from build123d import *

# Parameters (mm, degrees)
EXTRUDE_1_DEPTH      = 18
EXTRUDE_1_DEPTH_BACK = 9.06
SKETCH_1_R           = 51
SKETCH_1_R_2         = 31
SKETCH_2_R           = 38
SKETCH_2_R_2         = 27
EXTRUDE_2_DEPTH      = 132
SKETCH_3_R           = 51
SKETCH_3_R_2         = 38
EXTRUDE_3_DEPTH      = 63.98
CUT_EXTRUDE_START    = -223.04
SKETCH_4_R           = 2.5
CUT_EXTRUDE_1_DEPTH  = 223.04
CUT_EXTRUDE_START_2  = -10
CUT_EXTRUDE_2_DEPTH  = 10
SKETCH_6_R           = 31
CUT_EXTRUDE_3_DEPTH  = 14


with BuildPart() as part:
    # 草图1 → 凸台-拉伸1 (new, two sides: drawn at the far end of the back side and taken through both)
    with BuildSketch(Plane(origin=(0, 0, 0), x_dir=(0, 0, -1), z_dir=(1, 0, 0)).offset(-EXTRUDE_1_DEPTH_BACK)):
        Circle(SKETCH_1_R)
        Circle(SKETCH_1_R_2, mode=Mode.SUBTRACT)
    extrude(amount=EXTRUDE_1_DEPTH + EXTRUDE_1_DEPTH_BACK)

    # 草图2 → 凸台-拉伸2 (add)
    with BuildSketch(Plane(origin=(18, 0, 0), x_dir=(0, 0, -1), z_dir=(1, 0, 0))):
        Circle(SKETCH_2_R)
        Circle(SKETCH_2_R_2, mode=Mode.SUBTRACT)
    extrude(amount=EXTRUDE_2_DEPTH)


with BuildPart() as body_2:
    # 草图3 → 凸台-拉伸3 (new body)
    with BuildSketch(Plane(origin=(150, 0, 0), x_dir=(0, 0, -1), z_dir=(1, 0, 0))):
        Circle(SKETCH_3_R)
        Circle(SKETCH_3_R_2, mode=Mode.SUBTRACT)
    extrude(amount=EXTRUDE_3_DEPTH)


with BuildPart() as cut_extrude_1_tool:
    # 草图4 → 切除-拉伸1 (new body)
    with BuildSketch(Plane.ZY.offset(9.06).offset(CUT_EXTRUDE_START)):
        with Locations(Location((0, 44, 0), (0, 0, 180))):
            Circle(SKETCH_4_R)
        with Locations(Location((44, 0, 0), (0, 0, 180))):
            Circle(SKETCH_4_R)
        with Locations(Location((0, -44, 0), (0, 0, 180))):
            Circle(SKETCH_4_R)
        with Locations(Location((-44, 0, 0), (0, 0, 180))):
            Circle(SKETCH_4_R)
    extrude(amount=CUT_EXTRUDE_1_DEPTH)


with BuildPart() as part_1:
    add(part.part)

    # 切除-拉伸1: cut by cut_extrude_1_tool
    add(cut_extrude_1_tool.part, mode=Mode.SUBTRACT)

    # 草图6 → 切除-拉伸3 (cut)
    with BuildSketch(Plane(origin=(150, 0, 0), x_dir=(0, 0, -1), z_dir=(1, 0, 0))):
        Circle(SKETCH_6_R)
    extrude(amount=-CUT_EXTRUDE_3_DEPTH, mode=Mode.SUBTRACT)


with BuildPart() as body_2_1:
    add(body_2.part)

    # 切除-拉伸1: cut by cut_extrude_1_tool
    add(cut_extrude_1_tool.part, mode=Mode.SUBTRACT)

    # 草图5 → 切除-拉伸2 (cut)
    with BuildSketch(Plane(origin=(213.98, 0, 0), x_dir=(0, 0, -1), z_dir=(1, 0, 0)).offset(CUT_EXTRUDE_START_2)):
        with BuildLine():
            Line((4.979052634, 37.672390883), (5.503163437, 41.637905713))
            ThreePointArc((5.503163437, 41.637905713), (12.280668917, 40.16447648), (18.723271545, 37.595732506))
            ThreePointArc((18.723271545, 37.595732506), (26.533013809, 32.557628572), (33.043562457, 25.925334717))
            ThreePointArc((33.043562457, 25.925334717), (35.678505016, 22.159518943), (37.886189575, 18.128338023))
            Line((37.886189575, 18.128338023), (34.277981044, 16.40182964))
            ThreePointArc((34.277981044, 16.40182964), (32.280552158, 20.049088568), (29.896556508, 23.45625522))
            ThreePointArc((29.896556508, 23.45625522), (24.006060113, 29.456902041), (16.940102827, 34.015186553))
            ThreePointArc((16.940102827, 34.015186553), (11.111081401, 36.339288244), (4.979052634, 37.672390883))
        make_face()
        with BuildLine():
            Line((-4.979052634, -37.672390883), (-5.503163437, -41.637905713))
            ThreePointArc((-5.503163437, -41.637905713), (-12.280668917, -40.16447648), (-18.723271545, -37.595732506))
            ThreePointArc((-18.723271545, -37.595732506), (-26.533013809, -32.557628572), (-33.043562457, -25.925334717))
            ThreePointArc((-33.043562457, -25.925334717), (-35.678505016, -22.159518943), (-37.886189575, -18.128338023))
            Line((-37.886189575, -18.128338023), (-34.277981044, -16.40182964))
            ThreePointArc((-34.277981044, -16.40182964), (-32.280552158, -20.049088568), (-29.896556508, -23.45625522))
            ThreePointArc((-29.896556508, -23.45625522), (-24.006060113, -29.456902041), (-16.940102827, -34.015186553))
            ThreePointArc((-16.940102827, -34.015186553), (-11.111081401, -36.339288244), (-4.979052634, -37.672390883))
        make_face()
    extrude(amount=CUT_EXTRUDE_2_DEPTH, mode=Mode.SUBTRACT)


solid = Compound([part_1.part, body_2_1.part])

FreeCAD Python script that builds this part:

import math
import FreeCAD as App
import Part
import Sketcher

V = App.Vector

doc = App.newDocument("Part")
body = doc.addObject("PartDesign::Body", "Body")

# Sketch on YZ plane
sketch1 = body.newObject("Sketcher::SketchObject", "Sketch")
sketch1.AttachmentSupport = (doc.getObject("YZ_Plane"), [""])
sketch1.MapMode = "FlatFace"
sketch1.addGeometry([
    Part.Circle(V(0, 0, 0), V(0, 0, 1), 51),
    Part.Circle(V(0, 0, 0), V(0, 0, 1), 31),
], False)
sketch1.addConstraint([
    Sketcher.Constraint("Coincident", 0, 3, -1, 1),
    Sketcher.Constraint("Coincident", 1, 3, -1, 1),
    Sketcher.Constraint("Diameter", 0, 102.0),
    Sketcher.Constraint("Diameter", 1, 62.0),
])
pad1 = body.newObject("PartDesign::Pad", "Pad")
pad1.Profile = sketch1
pad1.Type = "TwoLengths"
pad1.Length = 18
pad1.Length2 = 9.06

# Sketch on YZ plane
sketch2 = body.newObject("Sketcher::SketchObject", "Sketch001")
sketch2.AttachmentSupport = (doc.getObject("YZ_Plane"), [""])
sketch2.MapMode = "FlatFace"
sketch2.AttachmentOffset = App.Placement(V(0, 0, 18), App.Rotation())
sketch2.addGeometry([
    Part.Circle(V(0, 0, 0), V(0, 0, 1), 38),
    Part.Circle(V(0, 0, 0), V(0, 0, 1), 27),
], False)
sketch2.addConstraint([
    Sketcher.Constraint("Coincident", 0, 3, -1, 1),
    Sketcher.Constraint("Coincident", 1, 3, -1, 1),
    Sketcher.Constraint("Diameter", 0, 76.0),
    Sketcher.Constraint("Diameter", 1, 54.0),
])
pad2 = body.newObject("PartDesign::Pad", "Pad001")
pad2.Profile = sketch2
pad2.Length = 132
body2 = doc.addObject("PartDesign::Body", "Body001")

# Sketch on YZ plane
sketch3 = body2.newObject("Sketcher::SketchObject", "Sketch002")
sketch3.AttachmentSupport = (doc.getObject("YZ_Plane001"), [""])
sketch3.MapMode = "FlatFace"
sketch3.AttachmentOffset = App.Placement(V(0, 0, 150), App.Rotation())
sketch3.addGeometry([
    Part.Circle(V(0, 0, 0), V(0, 0, 1), 51),
    Part.Circle(V(0, 0, 0), V(0, 0, 1), 38),
], False)
sketch3.addConstraint([
    Sketcher.Constraint("Coincident", 0, 3, -1, 1),
    Sketcher.Constraint("Coincident", 1, 3, -1, 1),
    Sketcher.Constraint("Diameter", 0, 102.0),
    Sketcher.Constraint("Diameter", 1, 76.0),
])
pad3 = body2.newObject("PartDesign::Pad", "Pad002")
pad3.Profile = sketch3
pad3.Length = 63.98
body3 = doc.addObject("PartDesign::Body", "Body002")
body3.AllowCompound = True

# Sketch on YZ plane
sketch4 = body3.newObject("Sketcher::SketchObject", "Sketch003")
sketch4.AttachmentSupport = (doc.getObject("YZ_Plane002"), [""])
sketch4.MapMode = "FlatFace"
sketch4.AttachmentOffset = App.Placement(V(0, 0, 213.98), App.Rotation())
sketch4.addGeometry([
    Part.Circle(V(44, 0, 0), V(0, 0, 1), 2.5),
    Part.Circle(V(0, 44, 0), V(0, 0, 1), 2.5),
    Part.Circle(V(-44, 0, 0), V(0, 0, 1), 2.5),
    Part.Circle(V(0, -44, 0), V(0, 0, 1), 2.5),
], False)
sketch4.addConstraint([
    Sketcher.Constraint("Equal", 0, 1),
    Sketcher.Constraint("Equal", 1, 2),
    Sketcher.Constraint("Equal", 2, 3),
    Sketcher.Constraint("Symmetric", 0, 3, 2, 3, -1, 1),
    Sketcher.Constraint("Symmetric", 1, 3, 3, 3, -1, 1),
    Sketcher.Constraint("PointOnObject", 0, 3, -1),
    Sketcher.Constraint("PointOnObject", 1, 3, -2),
    Sketcher.Constraint("Diameter", 0, 5.0),
    Sketcher.Constraint("DistanceX", -1, 1, 0, 3, 44.0),
    Sketcher.Constraint("DistanceY", -1, 1, 1, 3, 44.0),
])
pad4 = body3.newObject("PartDesign::Pad", "Pad003")
pad4.Profile = sketch4
pad4.Length = 223.04
pad4.Reversed = True
doc.recompute()

body4 = doc.addObject("PartDesign::Body", "Body003")
body4.BaseFeature = body3
boolean = body.newObject("PartDesign::Boolean", "Boolean")
boolean.Type = "Cut"
boolean.addObjects([body4])
doc.recompute()

# Sketch on YZ plane
sketch5 = body.newObject("Sketcher::SketchObject", "Sketch004")
sketch5.AttachmentSupport = (doc.getObject("YZ_Plane"), [""])
sketch5.MapMode = "FlatFace"
sketch5.AttachmentOffset = App.Placement(V(0, 0, 150), App.Rotation())
sketch5.addGeometry(Part.Circle(V(0, 0, 0), V(0, 0, 1), 31), False)
sketch5.addConstraint([
    Sketcher.Constraint("Coincident", 0, 3, -1, 1),
    Sketcher.Constraint("Diameter", 0, 62.0),
])
pocket1 = body.newObject("PartDesign::Pocket", "Pocket")
pocket1.Profile = sketch5
pocket1.Length = 14
doc.recompute()

boolean2 = body2.newObject("PartDesign::Boolean", "Boolean001")
boolean2.Type = "Cut"
boolean2.addObjects([body3])

# Sketch on YZ plane
sketch6 = body2.newObject("Sketcher::SketchObject", "Sketch005")
sketch6.AttachmentSupport = (doc.getObject("YZ_Plane001"), [""])
sketch6.MapMode = "FlatFace"
sketch6.AttachmentOffset = App.Placement(V(0, 0, 203.98), App.Rotation())
sketch6.addGeometry([
    Part.LineSegment(V(41.6, -5.5, 0), V(37.7, -5, 0)),  # 0
    Part.ArcOfCircle(Part.Circle(V(0, 0, 0), V(0, 0, 1), 38), math.radians(-26.47), math.radians(-7.53)),  # 1
    Part.ArcOfCircle(Part.Circle(V(0, 0, 0), V(0, 0, 1), 38), math.radians(-52), math.radians(-26)),  # 2
    Part.ArcOfCircle(Part.Circle(V(0, 0, 0), V(0, 0, 1), 38), math.radians(-64.43), math.radians(-51.88)),  # 3
    Part.LineSegment(V(16.4, -34.3, 0), V(18.1, -37.9, 0)),  # 4
    Part.ArcOfCircle(Part.Circle(V(0, 0, 0), V(0, 0, 1), 42), math.radians(-64.43), math.radians(-51.88)),  # 5
    Part.ArcOfCircle(Part.Circle(V(0, 0, 0), V(0, 0, 1), 42), math.radians(-52), math.radians(-26)),  # 6
    Part.ArcOfCircle(Part.Circle(V(0, 0, 0), V(0, 0, 1), 42), math.radians(-26.47), math.radians(-7.53)),  # 7
    Part.LineSegment(V(-41.6, 5.5, 0), V(-37.7, 5, 0)),  # 8
    Part.ArcOfCircle(Part.Circle(V(0, 0, 0), V(0, 0, 1), 38), math.radians(153.53), math.radians(172.47)),  # 9
    Part.ArcOfCircle(Part.Circle(V(0, 0, 0), V(0, 0, 1), 38), math.radians(128), math.radians(154)),  # 10
    Part.ArcOfCircle(Part.Circle(V(0, 0, 0), V(0, 0, 1), 38), math.radians(115.57), math.radians(128.12)),  # 11
    Part.LineSegment(V(-16.4, 34.3, 0), V(-18.1, 37.9, 0)),  # 12
    Part.ArcOfCircle(Part.Circle(V(0, 0, 0), V(0, 0, 1), 42), math.radians(115.57), math.radians(128.12)),  # 13
    Part.ArcOfCircle(Part.Circle(V(0, 0, 0), V(0, 0, 1), 42), math.radians(128), math.radians(154)),  # 14
    Part.ArcOfCircle(Part.Circle(V(0, 0, 0), V(0, 0, 1), 42), math.radians(153.53), math.radians(172.47)),  # 15
], False)
sketch6.addConstraint([
    Sketcher.Constraint("Coincident", 0, 2, 1, 2),
    Sketcher.Constraint("Tangent", 1, 1, 2, 2),
    Sketcher.Constraint("Tangent", 2, 1, 3, 2),
    Sketcher.Constraint("Coincident", 3, 1, 4, 1),
    Sketcher.Constraint("Coincident", 4, 2, 5, 1),
    Sketcher.Constraint("Tangent", 5, 2, 6, 1),
    Sketcher.Constraint("Tangent", 6, 2, 7, 1),
    Sketcher.Constraint("Coincident", 7, 2, 0, 1),
    Sketcher.Constraint("Coincident", 8, 2, 9, 2),
    Sketcher.Constraint("Tangent", 9, 1, 10, 2),
    Sketcher.Constraint("Tangent", 10, 1, 11, 2),
    Sketcher.Constraint("Coincident", 11, 1, 12, 1),
    Sketcher.Constraint("Coincident", 12, 2, 13, 1),
    Sketcher.Constraint("Tangent", 13, 2, 14, 1),
    Sketcher.Constraint("Tangent", 14, 2, 15, 1),
    Sketcher.Constraint("Coincident", 15, 2, 8, 1),
    Sketcher.Constraint("Coincident", 1, 3, -1, 1),
    Sketcher.Constraint("Coincident", 3, 3, -1, 1),
    Sketcher.Constraint("Coincident", 5, 3, -1, 1),
    Sketcher.Constraint("Coincident", 7, 3, -1, 1),
    Sketcher.Constraint("Coincident", 9, 3, -1, 1),
    Sketcher.Constraint("Coincident", 11, 3, -1, 1),
    Sketcher.Constraint("Coincident", 13, 3, -1, 1),
    Sketcher.Constraint("Coincident", 15, 3, -1, 1),
    Sketcher.Constraint("Equal", 3, 9),
    Sketcher.Constraint("Equal", 7, 13),
    Sketcher.Constraint("Parallel", 0, 8),
    Sketcher.Constraint("Parallel", 4, 12),
    Sketcher.Constraint("Radius", 1, 38.0),
    Sketcher.Constraint("Radius", 5, 42.0),
    Sketcher.Constraint("DistanceY", 5, 2, 7, 2, 27.540399),
    Sketcher.Constraint("DistanceY", 15, 2, 13, 2, 27.540399),
    Sketcher.Constraint("DistanceX", -1, 1, 0, 2, 37.672391),
    Sketcher.Constraint("DistanceX", -1, 1, 3, 1, 16.40183),
    Sketcher.Constraint("DistanceX", -1, 1, 4, 2, 18.128338),
    Sketcher.Constraint("DistanceY", 6, 2, -1, 1, 18.723272),
    Sketcher.Constraint("DistanceX", 8, 2, -1, 1, 37.672391),
    Sketcher.Constraint("DistanceX", 11, 1, -1, 1, 16.40183),
    Sketcher.Constraint("DistanceY", -1, 1, 14, 2, 18.723272),
    Sketcher.Constraint("DistanceY", 1, 1, 0, 2, 11.96105),
    Sketcher.Constraint("DistanceX", 2, 1, 1, 1, 10.558931),
    Sketcher.Constraint("DistanceX", 2, 1, 5, 2, 2.469079),
    Sketcher.Constraint("DistanceY", 8, 2, 9, 1, 11.96105),
    Sketcher.Constraint("DistanceX", 9, 1, 10, 1, 10.558931),
])
pocket2 = body2.newObject("PartDesign::Pocket", "Pocket001")
pocket2.Profile = sketch6
pocket2.Length = 10
pocket2.Reversed = True

doc.recompute()
